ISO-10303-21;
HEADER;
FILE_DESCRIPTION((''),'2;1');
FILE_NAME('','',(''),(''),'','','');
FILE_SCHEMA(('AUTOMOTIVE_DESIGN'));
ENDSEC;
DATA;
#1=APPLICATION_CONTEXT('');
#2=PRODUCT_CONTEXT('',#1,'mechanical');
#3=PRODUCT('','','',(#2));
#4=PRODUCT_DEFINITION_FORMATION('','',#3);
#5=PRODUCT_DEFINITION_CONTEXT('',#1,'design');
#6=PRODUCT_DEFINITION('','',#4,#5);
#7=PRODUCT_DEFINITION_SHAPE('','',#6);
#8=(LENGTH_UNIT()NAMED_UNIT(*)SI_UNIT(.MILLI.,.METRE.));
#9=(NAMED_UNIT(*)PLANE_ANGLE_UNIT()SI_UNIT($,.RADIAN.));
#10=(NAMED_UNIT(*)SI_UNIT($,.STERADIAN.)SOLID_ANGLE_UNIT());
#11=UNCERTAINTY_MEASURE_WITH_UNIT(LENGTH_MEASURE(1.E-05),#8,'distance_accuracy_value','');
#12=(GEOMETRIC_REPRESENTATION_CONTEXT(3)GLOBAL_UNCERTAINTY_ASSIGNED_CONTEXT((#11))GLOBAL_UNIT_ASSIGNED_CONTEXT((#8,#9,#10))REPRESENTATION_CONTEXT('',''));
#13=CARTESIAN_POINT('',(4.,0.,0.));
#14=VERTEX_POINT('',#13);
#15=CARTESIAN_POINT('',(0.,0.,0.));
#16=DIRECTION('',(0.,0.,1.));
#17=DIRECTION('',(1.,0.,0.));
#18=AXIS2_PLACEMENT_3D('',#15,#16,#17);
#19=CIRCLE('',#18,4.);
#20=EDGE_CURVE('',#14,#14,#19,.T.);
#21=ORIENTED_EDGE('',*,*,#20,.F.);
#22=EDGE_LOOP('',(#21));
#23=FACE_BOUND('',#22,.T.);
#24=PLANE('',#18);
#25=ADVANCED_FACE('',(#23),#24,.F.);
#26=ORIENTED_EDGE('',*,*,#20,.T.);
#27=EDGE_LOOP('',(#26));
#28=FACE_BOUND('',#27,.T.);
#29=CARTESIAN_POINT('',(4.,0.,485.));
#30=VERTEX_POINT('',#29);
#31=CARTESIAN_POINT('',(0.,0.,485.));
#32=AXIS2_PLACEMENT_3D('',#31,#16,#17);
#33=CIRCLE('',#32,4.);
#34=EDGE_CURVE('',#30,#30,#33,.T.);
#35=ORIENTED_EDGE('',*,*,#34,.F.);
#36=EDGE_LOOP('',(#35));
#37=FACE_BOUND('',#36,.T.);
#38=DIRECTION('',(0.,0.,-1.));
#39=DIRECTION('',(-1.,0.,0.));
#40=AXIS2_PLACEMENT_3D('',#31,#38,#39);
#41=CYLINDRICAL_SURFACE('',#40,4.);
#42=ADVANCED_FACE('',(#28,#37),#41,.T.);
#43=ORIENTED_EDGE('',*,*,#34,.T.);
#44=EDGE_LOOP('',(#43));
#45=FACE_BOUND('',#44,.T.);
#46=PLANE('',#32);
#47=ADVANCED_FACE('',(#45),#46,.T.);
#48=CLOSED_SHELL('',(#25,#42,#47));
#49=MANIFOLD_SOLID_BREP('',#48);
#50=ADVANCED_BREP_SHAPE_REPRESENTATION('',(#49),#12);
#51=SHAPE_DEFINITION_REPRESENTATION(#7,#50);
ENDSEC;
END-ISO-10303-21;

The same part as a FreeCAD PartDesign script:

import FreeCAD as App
import Part
import Sketcher
from FreeCAD import Vector

doc = App.newDocument("Part")
body = doc.addObject("PartDesign::Body", "Body")

# Sketch on XY plane
sketch1 = body.newObject("Sketcher::SketchObject", "Sketch")
sketch1.AttachmentSupport = (doc.getObject("XY_Plane"), [""])
sketch1.MapMode = "FlatFace"
sketch1.addGeometry(Part.Circle(Vector(0, 0, 0), Vector(0, 0, 1), 4), False)
sketch1.addConstraint(Sketcher.Constraint("Coincident", 0, 3, -1, 1))
sketch1.addConstraint(Sketcher.Constraint("Diameter", 0, 8.0))
pad1 = body.newObject("PartDesign::Pad", "Pad")
pad1.Profile = sketch1
pad1.Length = 485

doc.recompute()
